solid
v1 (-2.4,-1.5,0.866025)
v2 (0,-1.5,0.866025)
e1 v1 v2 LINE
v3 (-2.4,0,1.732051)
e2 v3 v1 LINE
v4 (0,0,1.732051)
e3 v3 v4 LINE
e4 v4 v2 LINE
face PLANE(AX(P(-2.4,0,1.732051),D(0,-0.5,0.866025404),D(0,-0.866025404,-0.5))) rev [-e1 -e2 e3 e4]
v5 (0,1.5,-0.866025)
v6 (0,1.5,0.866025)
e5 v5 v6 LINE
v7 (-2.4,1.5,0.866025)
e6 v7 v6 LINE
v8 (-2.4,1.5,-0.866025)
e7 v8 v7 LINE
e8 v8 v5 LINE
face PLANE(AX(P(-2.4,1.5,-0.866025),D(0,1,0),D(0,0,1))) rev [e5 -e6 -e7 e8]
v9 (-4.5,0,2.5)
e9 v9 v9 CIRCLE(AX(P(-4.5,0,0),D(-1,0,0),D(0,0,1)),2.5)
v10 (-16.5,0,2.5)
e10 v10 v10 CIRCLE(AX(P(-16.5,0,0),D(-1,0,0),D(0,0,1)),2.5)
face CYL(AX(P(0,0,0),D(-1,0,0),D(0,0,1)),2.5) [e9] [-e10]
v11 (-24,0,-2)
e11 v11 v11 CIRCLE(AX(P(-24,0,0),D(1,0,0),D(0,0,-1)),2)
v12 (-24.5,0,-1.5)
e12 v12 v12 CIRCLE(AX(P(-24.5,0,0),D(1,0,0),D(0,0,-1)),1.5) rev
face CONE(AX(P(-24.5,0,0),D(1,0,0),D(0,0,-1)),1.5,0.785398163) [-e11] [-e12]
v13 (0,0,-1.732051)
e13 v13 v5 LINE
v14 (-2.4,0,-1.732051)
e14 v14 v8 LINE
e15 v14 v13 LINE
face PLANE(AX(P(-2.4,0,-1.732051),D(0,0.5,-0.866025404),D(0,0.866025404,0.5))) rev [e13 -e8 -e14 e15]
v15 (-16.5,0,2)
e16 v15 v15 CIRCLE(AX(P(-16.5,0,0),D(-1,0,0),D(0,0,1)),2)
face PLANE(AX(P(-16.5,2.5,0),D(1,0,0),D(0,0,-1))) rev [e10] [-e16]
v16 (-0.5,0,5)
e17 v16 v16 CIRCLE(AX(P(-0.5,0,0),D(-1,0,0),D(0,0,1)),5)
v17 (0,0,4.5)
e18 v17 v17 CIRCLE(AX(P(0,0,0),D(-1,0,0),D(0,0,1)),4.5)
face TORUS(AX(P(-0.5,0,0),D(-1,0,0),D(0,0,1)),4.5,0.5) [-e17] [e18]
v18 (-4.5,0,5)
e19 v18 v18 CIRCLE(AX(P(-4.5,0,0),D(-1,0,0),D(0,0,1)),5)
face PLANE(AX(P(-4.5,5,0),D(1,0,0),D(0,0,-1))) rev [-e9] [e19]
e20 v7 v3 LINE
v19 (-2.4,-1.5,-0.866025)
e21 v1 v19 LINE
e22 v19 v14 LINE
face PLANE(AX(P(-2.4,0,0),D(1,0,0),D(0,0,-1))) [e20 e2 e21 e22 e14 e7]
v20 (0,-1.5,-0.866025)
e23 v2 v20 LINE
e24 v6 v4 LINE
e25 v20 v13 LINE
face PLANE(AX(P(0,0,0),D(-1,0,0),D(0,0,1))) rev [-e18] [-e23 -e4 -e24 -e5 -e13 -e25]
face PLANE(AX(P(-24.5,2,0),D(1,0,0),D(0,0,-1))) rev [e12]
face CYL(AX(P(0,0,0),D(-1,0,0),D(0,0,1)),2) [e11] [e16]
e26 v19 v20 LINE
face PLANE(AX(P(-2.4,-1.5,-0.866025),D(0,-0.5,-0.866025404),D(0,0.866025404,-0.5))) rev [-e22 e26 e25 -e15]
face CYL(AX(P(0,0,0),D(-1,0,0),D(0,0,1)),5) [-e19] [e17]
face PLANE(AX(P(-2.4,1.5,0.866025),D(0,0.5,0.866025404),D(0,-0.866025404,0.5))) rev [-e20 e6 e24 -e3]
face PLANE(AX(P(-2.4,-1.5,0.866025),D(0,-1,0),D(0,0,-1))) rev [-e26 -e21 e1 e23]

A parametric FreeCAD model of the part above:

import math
import FreeCAD as App
import Part
import Sketcher
from FreeCAD import Vector
Q = App.Units.Quantity


def edges_at(feature, points):
    """Names of the edges that pass closest to the given points."""
    edges = feature.Shape.Edges
    near = lambda p: min(range(len(edges)), key=lambda i: edges[i].distToShape(Part.Vertex(*p))[0])
    return sorted({f"Edge{near(p) + 1}" for p in points})


def add_polygon(sketch, points):
    """Adds a closed chain of lines whose ends are joined by coincident constraints."""
    first, n = sketch.GeometryCount, len(points)
    for a, b in zip(points, points[1:] + points[:1]):
        sketch.addGeometry(Part.LineSegment(App.Vector(*a, 0), App.Vector(*b, 0)), False)
    for i in range(n):
        sketch.addConstraint(Sketcher.Constraint("Coincident", first + i, 2, first + (i + 1) % n, 1))

doc = App.newDocument("Part")
body = doc.addObject("PartDesign::Body", "Body")

# Sketch on XY plane
sketch1 = body.newObject("Sketcher::SketchObject", "Sketch")
sketch1.AttachmentSupport = (doc.getObject("XY_Plane"), [""])
sketch1.MapMode = "FlatFace"
sketch1.addGeometry([
    Part.LineSegment(Vector(0, 0, 0), Vector(0, 4.5, 0)),  # 0
    Part.ArcOfCircle(Part.Circle(Vector(-0.5, 4.5, 0), Vector(0, 0, 1), 0.5), math.radians(0), math.radians(90)),  # 1
    Part.LineSegment(Vector(-0.5, 5, 0), Vector(-4.5, 5, 0)),  # 2
    Part.LineSegment(Vector(-4.5, 5, 0), Vector(-4.5, 2.5, 0)),  # 3
    Part.LineSegment(Vector(-4.5, 2.5, 0), Vector(-16.5, 2.5, 0)),  # 4
    Part.LineSegment(Vector(-16.5, 2.5, 0), Vector(-16.5, 2, 0)),  # 5
    Part.LineSegment(Vector(-16.5, 2, 0), Vector(-24.5, 2, 0)),  # 6
    Part.LineSegment(Vector(-24.5, 2, 0), Vector(-24.5, 0, 0)),  # 7
    Part.LineSegment(Vector(-24.5, 0, 0), Vector(0, 0, 0)),  # 8
], False)
sketch1.addConstraint([
    Sketcher.Constraint("Tangent", 0, 2, 1, 1),
    Sketcher.Constraint("Tangent", 1, 2, 2, 1),
    Sketcher.Constraint("Coincident", 2, 2, 3, 1),
    Sketcher.Constraint("Coincident", 3, 2, 4, 1),
    Sketcher.Constraint("Coincident", 4, 2, 5, 1),
    Sketcher.Constraint("Coincident", 5, 2, 6, 1),
    Sketcher.Constraint("Coincident", 6, 2, 7, 1),
    Sketcher.Constraint("Coincident", 7, 2, 8, 1),
    Sketcher.Constraint("Coincident", 8, 2, 0, 1),
    Sketcher.Constraint("Vertical", 0),
    Sketcher.Constraint("Horizontal", 2),
    Sketcher.Constraint("Vertical", 3),
    Sketcher.Constraint("Horizontal", 4),
    Sketcher.Constraint("Vertical", 5),
    Sketcher.Constraint("Horizontal", 6),
    Sketcher.Constraint("Vertical", 7),
    Sketcher.Constraint("Horizontal", 8),
    Sketcher.Constraint("Coincident", 8, 2, -1, 1),
    Sketcher.Constraint("Radius", 1, Q("0.5 mm")),
    Sketcher.Constraint("DistanceX", 2, 2, 2, 1, Q("4 mm")),
    Sketcher.Constraint("DistanceX", 4, 2, 4, 1, Q("12 mm")),
    Sketcher.Constraint("DistanceX", 6, 2, 6, 1, Q("8 mm")),
    Sketcher.Constraint("DistanceY", 7, 2, 7, 1, Q("2 mm")),
    Sketcher.Constraint("DistanceY", 0, 1, 0, 2, Q("4.5 mm")),
    Sketcher.Constraint("DistanceY", 3, 2, 3, 1, Q("2.5 mm")),
])
revolution = body.newObject("PartDesign::Revolution", "Revolution")
revolution.Profile = sketch1
revolution.ReferenceAxis = (sketch1, ["H_Axis"])
revolution.Angle = 360
doc.recompute()

chamfer = body.newObject("PartDesign::Chamfer", "Chamfer")
chamfer.Base = (revolution, edges_at(revolution, [(-24.5, 0, -2)]))
chamfer.Size = 0.5

# Sketch on YZ plane
sketch2 = body.newObject("Sketcher::SketchObject", "Sketch001")
sketch2.AttachmentSupport = (doc.getObject("YZ_Plane"), [""])
sketch2.MapMode = "FlatFace"
add_polygon(sketch2, [(0, -1.732051), (1.5, -0.866025), (1.5, 0.866025), (0, 1.732051), (-1.5, 0.866025), (-1.5, -0.866025)])  # lines 0-5
sketch2.addConstraint([
    Sketcher.Constraint("Vertical", 1),
    Sketcher.Constraint("Vertical", 4),
    Sketcher.Constraint("Symmetric", 0, 2, 3, 2, -1, 1),
    Sketcher.Constraint("Symmetric", 2, 2, 5, 2, -1, 1),
    Sketcher.Constraint("PointOnObject", 2, 2, -2),
    Sketcher.Constraint("Parallel", 2, 5),
    Sketcher.Constraint("Horizontal", 1, 2, 3, 2),
    Sketcher.Constraint("Angle", 0, Q("30 deg")),
    Sketcher.Constraint("DistanceX", 3, 2, 1, 2, Q("3 mm")),
    Sketcher.Constraint("DistanceY", 1, 1, 1, 2, Q("1.732051 mm")),
])
pocket1 = body.newObject("PartDesign::Pocket", "Pocket")
pocket1.Profile = sketch2
pocket1.Length = 2.4

doc.recompute()
